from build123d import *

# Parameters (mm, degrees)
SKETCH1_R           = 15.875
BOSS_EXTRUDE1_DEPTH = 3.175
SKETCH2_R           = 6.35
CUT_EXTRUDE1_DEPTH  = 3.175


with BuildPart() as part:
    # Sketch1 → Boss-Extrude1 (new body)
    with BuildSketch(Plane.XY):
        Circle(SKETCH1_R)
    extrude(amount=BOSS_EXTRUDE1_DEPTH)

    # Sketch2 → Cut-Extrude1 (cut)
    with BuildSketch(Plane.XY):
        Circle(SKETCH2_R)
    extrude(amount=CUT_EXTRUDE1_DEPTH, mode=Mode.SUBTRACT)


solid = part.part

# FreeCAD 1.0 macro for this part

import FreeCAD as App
import Part
import Sketcher
from FreeCAD import Vector
Q = App.Units.Quantity

doc = App.newDocument("Part")
body = doc.addObject("PartDesign::Body", "Body")

sketch1 = body.newObject("Sketcher::SketchObject", "Sketch")
sketch1.AttachmentSupport = (doc.getObject("XY_Plane"), [""])
sketch1.MapMode = "FlatFace"
sketch1.addGeometry(Part.Circle(Vector(0, 0, 0), Vector(0, 0, 1), 15.875), False)
sketch1.addConstraint([
    Sketcher.Constraint("Coincident", 0, 3, -1, 1),
    Sketcher.Constraint("Diameter", 0, Q("1.25 in")),
])
pad1 = body.newObject("PartDesign::Pad", "Pad")
pad1.Profile = sketch1
pad1.Length = Q("0.125 in")

sketch2 = body.newObject("Sketcher::SketchObject", "Sketch001")
sketch2.AttachmentSupport = (doc.getObject("XY_Plane"), [""])
sketch2.MapMode = "FlatFace"
sketch2.addGeometry(Part.Circle(Vector(0, 0, 0), Vector(0, 0, 1), 6.35), False)
sketch2.addConstraint([
    Sketcher.Constraint("Coincident", 0, 3, -1, 1),
    Sketcher.Constraint("Diameter", 0, Q("0.5 in")),
])
pocket1 = body.newObject("PartDesign::Pocket", "Pocket")
pocket1.Profile = sketch2
pocket1.Length = Q("0.125 in")
pocket1.Reversed = True

doc.recompute()
